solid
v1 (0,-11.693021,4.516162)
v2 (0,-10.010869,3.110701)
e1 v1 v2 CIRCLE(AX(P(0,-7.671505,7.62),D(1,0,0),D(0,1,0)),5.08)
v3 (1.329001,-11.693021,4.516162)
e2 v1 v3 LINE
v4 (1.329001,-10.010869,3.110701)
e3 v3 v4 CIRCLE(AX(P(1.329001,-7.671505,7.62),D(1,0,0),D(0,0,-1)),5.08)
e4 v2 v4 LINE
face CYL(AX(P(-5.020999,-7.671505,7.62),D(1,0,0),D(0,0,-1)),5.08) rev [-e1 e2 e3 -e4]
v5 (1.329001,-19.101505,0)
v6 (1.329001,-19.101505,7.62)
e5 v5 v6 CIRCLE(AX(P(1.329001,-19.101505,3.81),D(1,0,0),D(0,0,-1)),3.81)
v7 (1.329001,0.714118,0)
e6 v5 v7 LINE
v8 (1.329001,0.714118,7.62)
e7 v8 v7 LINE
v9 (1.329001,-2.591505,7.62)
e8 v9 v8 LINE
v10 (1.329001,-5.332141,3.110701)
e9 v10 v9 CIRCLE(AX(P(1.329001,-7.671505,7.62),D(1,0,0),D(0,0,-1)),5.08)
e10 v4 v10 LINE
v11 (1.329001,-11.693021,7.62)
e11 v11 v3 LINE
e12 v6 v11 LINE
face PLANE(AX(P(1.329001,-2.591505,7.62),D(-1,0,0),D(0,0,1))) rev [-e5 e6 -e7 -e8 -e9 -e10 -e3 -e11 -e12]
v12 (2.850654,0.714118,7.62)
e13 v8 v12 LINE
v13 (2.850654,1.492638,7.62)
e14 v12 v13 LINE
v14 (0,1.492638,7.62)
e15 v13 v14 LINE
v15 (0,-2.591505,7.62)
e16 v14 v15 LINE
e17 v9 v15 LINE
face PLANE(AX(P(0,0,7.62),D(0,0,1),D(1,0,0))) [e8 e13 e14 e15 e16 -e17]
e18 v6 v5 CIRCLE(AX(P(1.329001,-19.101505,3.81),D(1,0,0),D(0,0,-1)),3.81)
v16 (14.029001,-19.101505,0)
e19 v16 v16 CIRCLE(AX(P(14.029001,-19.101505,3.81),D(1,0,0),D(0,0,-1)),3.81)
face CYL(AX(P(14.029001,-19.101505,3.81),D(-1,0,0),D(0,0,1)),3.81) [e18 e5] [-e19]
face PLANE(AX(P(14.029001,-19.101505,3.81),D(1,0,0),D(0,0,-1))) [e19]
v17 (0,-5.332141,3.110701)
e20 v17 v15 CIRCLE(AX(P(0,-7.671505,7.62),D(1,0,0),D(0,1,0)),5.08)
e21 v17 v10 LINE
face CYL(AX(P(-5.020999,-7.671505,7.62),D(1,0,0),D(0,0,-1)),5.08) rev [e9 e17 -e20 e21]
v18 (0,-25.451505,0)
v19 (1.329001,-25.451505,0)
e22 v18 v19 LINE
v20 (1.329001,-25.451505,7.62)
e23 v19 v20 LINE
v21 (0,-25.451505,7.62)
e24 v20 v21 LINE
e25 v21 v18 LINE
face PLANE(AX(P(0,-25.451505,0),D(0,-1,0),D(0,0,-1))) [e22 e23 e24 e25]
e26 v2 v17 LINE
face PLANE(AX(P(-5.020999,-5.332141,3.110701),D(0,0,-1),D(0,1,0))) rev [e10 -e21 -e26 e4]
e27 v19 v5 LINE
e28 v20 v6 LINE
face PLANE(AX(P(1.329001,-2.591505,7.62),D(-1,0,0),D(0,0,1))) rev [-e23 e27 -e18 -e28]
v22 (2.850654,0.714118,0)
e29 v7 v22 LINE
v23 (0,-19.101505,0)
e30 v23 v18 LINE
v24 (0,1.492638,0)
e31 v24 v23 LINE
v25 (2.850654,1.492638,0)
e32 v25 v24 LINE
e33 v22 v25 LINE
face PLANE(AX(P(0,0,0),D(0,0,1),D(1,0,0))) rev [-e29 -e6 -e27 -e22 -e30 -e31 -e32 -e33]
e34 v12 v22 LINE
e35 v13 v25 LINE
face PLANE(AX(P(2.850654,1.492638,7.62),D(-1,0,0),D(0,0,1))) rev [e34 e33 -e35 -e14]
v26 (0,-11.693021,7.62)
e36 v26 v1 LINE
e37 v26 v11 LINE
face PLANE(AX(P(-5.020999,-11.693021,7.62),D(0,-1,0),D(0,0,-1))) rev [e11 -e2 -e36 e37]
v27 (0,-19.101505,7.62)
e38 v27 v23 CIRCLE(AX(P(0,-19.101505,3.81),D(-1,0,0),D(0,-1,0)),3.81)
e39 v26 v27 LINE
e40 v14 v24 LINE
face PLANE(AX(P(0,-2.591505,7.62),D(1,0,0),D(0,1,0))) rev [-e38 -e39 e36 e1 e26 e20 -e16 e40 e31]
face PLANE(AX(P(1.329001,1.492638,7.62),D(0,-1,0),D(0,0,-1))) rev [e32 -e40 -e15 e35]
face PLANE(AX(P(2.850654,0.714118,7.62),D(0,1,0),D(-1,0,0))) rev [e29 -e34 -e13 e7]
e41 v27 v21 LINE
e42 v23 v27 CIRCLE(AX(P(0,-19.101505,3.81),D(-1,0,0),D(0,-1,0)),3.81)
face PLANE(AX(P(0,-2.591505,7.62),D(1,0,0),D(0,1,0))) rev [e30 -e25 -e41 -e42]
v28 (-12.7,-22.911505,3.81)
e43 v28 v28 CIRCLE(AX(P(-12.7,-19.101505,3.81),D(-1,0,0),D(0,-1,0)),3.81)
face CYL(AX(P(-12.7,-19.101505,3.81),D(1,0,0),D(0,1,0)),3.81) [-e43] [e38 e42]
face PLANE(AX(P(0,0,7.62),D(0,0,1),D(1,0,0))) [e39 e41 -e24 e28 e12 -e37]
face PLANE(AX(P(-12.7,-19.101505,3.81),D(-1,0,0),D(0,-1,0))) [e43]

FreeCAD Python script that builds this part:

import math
import FreeCAD as App
import Part
import Sketcher
from FreeCAD import Vector
Q = App.Units.Quantity

doc = App.newDocument("Part")
body = doc.addObject("PartDesign::Body", "Body")

sketch1 = doc.addObject("Sketcher::SketchObject", "Sketch")
body.addObject(sketch1)
sketch1.AttachmentSupport = (doc.XY_Plane, [""])
sketch1.MapMode = "FlatFace"
sketch1.addGeometry([
    Part.LineSegment(Vector(1.3, 0.7, 0), Vector(2.9, 0.7, 0)),
    Part.LineSegment(Vector(2.9, 0.7, 0), Vector(2.9, 1.5, 0)),
    Part.LineSegment(Vector(2.9, 1.5, 0), Vector(0, 1.5, 0)),
    Part.LineSegment(Vector(0, 1.5, 0), Vector(0, -12.8, 0)),
    Part.LineSegment(Vector(0, -12.8, 0), Vector(1.3, -12.8, 0)),
    Part.LineSegment(Vector(1.3, -12.8, 0), Vector(1.3, 0.7, 0)),
], False)
sketch1.addConstraint([
    Sketcher.Constraint("Coincident", 0, 2, 1, 1),
    Sketcher.Constraint("Coincident", 1, 2, 2, 1),
    Sketcher.Constraint("Coincident", 2, 2, 3, 1),
    Sketcher.Constraint("Coincident", 3, 2, 4, 1),
    Sketcher.Constraint("Coincident", 4, 2, 5, 1),
    Sketcher.Constraint("Coincident", 5, 2, 0, 1),
    Sketcher.Constraint("Horizontal", 0),
    Sketcher.Constraint("Vertical", 1),
    Sketcher.Constraint("Horizontal", 2),
    Sketcher.Constraint("Vertical", 3),
    Sketcher.Constraint("Horizontal", 4),
    Sketcher.Constraint("Vertical", 5),
    Sketcher.Constraint("PointOnObject", 2, 2, -2),
    Sketcher.Constraint("DistanceX", 4, 1, 4, 2, 1.329001),
    Sketcher.Constraint("DistanceY", 1, 1, 1, 2, 0.77852),
    Sketcher.Constraint("DistanceX", 0, 1, 0, 2, 1.521653),
    Sketcher.Constraint("DistanceY", 3, 2, 3, 1, 14.244143),
    Sketcher.Constraint("DistanceY", -1, 1, 0, 2, 0.714118),
])
pad1 = doc.addObject("PartDesign::Pad", "Pad")
body.addObject(pad1)
pad1.Profile = sketch1
pad1.Length = Q("0.3 in")

sketch2 = doc.addObject("Sketcher::SketchObject", "Sketch001")
body.addObject(sketch2)
sketch2.AttachmentSupport = (doc.YZ_Plane, [""])
sketch2.MapMode = "FlatFace"
sketch2.AttachmentOffset = App.Placement(Vector(0, 0, 1.329001), App.Rotation())
sketch2.addGeometry([
    Part.LineSegment(Vector(-10, 3.1, 0), Vector(-5.3, 3.1, 0)),
    Part.ArcOfCircle(Part.Circle(Vector(-7.7, 7.6, 0), Vector(0, 0, 1), 5.1), math.radians(-63), math.radians(0)),
    Part.LineSegment(Vector(-2.6, 7.6, 0), Vector(-11.7, 7.6, 0)),
    Part.LineSegment(Vector(-11.7, 7.6, 0), Vector(-11.7, 4.5, 0)),
    Part.ArcOfCircle(Part.Circle(Vector(-7.7, 7.6, 0), Vector(0, 0, 1), 5.1), math.radians(-142), math.radians(-117)),
], False)
sketch2.addConstraint([
    Sketcher.Constraint("Coincident", 0, 2, 1, 1),
    Sketcher.Constraint("Coincident", 1, 2, 2, 1),
    Sketcher.Constraint("Coincident", 2, 2, 3, 1),
    Sketcher.Constraint("Coincident", 3, 2, 4, 1),
    Sketcher.Constraint("Coincident", 4, 2, 0, 1),
    Sketcher.Constraint("Horizontal", 0),
    Sketcher.Constraint("Horizontal", 2),
    Sketcher.Constraint("Vertical", 3),
    Sketcher.Constraint("Coincident", 4, 3, 1, 3),
    Sketcher.Constraint("Equal", 1, 4),
    Sketcher.Constraint("Horizontal", 4, 3, 1, 2),
    Sketcher.Constraint("Radius", 1, Q("0.2 in")),
    Sketcher.Constraint("DistanceY", -1, 1, 1, 3, Q("0.3 in")),
    Sketcher.Constraint("DistanceY", 3, 2, 3, 1, 3.103838),
    Sketcher.Constraint("DistanceY", -1, 1, 0, 2, 3.110701),
    Sketcher.Constraint("DistanceX", 0, 2, -1, 1, 5.332141),
])
pocket1 = doc.addObject("PartDesign::Pocket", "Pocket")
body.addObject(pocket1)
pocket1.Profile = sketch2
pocket1.Length = Q("0.25 in")

sketch3 = doc.addObject("Sketcher::SketchObject", "Sketch002")
body.addObject(sketch3)
sketch3.AttachmentSupport = (doc.XZ_Plane, [""])
sketch3.MapMode = "FlatFace"
sketch3.AttachmentOffset = App.Placement(Vector(0, 0, 12.751505), App.Rotation())
sketch3.addGeometry([
    Part.LineSegment(Vector(0, 7.6, 0), Vector(0, 0, 0)),
    Part.LineSegment(Vector(0, 0, 0), Vector(1.3, 0, 0)),
    Part.LineSegment(Vector(1.3, 0, 0), Vector(1.3, 7.6, 0)),
    Part.LineSegment(Vector(1.3, 7.6, 0), Vector(0, 7.6, 0)),
], False)
sketch3.addConstraint([
    Sketcher.Constraint("Coincident", 0, 2, 1, 1),
    Sketcher.Constraint("Coincident", 1, 2, 2, 1),
    Sketcher.Constraint("Coincident", 2, 2, 3, 1),
    Sketcher.Constraint("Coincident", 3, 2, 0, 1),
    Sketcher.Constraint("Vertical", 0),
    Sketcher.Constraint("Horizontal", 1),
    Sketcher.Constraint("Vertical", 2),
    Sketcher.Constraint("Horizontal", 3),
    Sketcher.Constraint("Coincident", 0, 2, -1, 1),
    Sketcher.Constraint("DistanceY", 0, 2, 0, 1, Q("0.3 in")),
    Sketcher.Constraint("DistanceX", 1, 1, 1, 2, 1.329001),
])
pad2 = doc.addObject("PartDesign::Pad", "Pad001")
body.addObject(pad2)
pad2.Profile = sketch3
pad2.Length = Q("0.5 in")

sketch4 = doc.addObject("Sketcher::SketchObject", "Sketch003")
body.addObject(sketch4)
sketch4.AttachmentSupport = (doc.YZ_Plane, [""])
sketch4.MapMode = "FlatFace"
sketch4.AttachmentOffset = App.Placement(Vector(0, 0, 1.329001), App.Rotation())
sketch4.addGeometry(Part.Circle(Vector(-19.1, 3.8, 0), Vector(0, 0, 1), 3.8), False)
sketch4.addConstraint([
    Sketcher.Constraint("Diameter", 0, Q("0.3 in")),
    Sketcher.Constraint("DistanceY", -1, 1, 0, 3, Q("0.15 in")),
    Sketcher.Constraint("DistanceX", 0, 3, -1, 1, 19.101505),
])
pad3 = doc.addObject("PartDesign::Pad", "Pad002")
body.addObject(pad3)
pad3.Profile = sketch4
pad3.Length = Q("0.5 in")

sketch5 = doc.addObject("Sketcher::SketchObject", "Sketch004")
body.addObject(sketch5)
sketch5.AttachmentSupport = (doc.YZ_Plane, [""])
sketch5.MapMode = "FlatFace"
sketch5.AttachmentOffset = App.Placement(Vector(0, 0, -0.5 * 25.4), App.Rotation())
sketch5.addGeometry(Part.Circle(Vector(-19.1, 3.8, 0), Vector(0, 0, 1), 3.8), False)
sketch5.addConstraint([
    Sketcher.Constraint("Diameter", 0, Q("0.3 in")),
    Sketcher.Constraint("DistanceY", -1, 1, 0, 3, Q("0.15 in")),
    Sketcher.Constraint("DistanceX", 0, 3, -1, 1, 19.101505),
])
pad4 = doc.addObject("PartDesign::Pad", "Pad003")
body.addObject(pad4)
pad4.Profile = sketch5
pad4.Length = Q("0.5 in")

doc.recompute()
